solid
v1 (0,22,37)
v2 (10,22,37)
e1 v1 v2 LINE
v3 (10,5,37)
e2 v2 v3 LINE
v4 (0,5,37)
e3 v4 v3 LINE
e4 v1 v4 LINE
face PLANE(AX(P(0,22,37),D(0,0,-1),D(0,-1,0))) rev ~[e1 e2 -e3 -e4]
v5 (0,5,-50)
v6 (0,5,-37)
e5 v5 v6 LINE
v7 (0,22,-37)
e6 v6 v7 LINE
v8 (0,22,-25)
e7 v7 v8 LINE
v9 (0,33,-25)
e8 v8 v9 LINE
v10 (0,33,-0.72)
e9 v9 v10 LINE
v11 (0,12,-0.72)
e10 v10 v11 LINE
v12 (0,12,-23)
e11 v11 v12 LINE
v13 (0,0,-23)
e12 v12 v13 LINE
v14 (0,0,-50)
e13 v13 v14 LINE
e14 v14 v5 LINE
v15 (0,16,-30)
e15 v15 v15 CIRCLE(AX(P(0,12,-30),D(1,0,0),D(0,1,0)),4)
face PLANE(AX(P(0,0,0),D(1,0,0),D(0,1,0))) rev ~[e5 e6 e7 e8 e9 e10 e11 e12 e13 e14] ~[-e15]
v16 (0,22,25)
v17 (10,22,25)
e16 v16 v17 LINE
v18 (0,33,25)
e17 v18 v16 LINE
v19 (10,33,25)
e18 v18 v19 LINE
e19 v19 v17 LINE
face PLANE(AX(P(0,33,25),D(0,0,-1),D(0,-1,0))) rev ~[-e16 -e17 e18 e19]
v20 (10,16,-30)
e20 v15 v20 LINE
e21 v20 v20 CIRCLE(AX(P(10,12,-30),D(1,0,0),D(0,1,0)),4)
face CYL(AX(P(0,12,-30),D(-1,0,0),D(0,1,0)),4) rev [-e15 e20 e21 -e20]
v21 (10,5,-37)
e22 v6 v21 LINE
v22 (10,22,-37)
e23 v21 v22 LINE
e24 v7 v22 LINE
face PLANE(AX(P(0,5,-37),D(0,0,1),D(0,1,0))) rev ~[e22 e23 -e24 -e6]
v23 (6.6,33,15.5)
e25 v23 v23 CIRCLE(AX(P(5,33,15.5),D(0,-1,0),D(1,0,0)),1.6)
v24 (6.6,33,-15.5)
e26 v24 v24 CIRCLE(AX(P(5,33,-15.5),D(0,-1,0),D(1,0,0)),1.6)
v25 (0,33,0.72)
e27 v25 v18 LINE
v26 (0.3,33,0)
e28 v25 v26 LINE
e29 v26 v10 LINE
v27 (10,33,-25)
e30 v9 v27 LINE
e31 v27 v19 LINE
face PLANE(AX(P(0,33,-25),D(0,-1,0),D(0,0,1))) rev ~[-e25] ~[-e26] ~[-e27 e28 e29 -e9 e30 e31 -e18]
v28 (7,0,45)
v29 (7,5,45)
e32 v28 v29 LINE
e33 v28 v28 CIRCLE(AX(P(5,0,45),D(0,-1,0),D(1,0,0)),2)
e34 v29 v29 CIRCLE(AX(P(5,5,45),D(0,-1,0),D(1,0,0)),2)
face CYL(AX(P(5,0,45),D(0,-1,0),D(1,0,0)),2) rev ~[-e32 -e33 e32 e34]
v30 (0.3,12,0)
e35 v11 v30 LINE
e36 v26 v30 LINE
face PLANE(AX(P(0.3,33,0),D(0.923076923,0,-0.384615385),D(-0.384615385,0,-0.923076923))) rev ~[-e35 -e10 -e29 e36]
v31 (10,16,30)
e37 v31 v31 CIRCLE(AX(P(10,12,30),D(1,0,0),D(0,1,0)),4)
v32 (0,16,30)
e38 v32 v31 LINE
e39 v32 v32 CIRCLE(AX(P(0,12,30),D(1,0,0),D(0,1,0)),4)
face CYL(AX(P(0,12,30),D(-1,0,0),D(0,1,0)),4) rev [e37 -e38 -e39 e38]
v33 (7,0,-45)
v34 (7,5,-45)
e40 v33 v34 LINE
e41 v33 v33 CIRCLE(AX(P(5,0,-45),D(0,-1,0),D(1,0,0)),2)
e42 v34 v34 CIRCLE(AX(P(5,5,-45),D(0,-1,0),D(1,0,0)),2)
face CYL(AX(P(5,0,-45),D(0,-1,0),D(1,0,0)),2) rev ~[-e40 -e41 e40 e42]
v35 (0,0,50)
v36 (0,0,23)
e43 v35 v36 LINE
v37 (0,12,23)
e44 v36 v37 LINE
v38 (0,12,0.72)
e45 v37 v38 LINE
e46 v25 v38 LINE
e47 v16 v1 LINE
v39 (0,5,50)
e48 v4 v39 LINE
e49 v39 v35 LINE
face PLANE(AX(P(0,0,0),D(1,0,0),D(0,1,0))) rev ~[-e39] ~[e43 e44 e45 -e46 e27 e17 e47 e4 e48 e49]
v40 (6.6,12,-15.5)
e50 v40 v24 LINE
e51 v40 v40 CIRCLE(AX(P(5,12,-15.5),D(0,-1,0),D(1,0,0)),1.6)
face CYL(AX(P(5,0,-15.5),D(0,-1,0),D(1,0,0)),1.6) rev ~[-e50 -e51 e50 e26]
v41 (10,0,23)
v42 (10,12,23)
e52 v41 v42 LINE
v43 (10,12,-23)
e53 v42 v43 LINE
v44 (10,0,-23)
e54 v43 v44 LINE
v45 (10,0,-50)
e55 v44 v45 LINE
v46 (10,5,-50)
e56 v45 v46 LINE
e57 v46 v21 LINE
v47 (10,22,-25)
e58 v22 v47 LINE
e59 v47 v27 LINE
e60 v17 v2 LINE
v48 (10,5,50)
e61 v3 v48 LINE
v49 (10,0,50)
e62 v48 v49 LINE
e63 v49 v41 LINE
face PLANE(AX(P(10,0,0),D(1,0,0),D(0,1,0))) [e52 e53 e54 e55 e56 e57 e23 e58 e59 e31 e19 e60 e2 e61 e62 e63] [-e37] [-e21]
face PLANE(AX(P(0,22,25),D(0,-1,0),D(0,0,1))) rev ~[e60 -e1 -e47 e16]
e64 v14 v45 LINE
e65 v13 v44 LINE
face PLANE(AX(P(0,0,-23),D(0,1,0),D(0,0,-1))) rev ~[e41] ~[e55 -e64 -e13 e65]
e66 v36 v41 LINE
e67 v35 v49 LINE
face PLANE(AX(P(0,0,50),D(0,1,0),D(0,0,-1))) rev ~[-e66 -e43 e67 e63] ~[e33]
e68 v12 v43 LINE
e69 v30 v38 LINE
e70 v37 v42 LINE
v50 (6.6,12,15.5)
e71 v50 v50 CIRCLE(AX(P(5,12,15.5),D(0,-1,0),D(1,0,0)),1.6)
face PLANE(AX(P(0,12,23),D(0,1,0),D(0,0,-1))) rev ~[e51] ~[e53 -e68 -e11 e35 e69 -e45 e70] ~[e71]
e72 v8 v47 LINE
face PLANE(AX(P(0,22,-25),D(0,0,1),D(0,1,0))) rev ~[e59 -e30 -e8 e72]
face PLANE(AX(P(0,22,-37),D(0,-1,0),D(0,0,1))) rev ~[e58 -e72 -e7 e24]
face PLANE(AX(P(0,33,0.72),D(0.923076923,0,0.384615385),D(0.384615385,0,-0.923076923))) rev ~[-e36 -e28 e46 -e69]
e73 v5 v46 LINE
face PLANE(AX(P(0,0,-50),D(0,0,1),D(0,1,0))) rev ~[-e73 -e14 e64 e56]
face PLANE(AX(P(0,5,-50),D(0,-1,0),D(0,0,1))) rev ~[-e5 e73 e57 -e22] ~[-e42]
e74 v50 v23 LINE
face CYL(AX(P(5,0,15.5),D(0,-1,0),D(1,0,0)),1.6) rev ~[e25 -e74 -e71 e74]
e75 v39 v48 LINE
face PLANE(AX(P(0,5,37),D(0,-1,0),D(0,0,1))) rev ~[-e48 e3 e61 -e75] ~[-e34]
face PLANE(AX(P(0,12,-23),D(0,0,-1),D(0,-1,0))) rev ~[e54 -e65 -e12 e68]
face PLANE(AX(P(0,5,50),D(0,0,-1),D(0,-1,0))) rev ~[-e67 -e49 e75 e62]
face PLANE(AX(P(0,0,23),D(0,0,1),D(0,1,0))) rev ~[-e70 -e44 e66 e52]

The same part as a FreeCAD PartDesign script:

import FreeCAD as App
import Part
import Sketcher

doc = App.newDocument("Part")
body = doc.addObject("PartDesign::Body", "Body")

# Sketch on YZ plane
sketch1 = body.newObject("Sketcher::SketchObject", "Sketch")
sketch1.AttachmentSupport = (doc.getObject("YZ_Plane"), [""])
sketch1.MapMode = "FlatFace"
sketch1.addGeometry(Part.LineSegment(App.Vector(5, 50, 0), App.Vector(0, 50, 0)), False)
sketch1.addGeometry(Part.LineSegment(App.Vector(0, 50, 0), App.Vector(0, 23, 0)), False)
sketch1.addGeometry(Part.LineSegment(App.Vector(0, 23, 0), App.Vector(12, 23, 0)), False)
sketch1.addGeometry(Part.LineSegment(App.Vector(12, 23, 0), App.Vector(12, -23, 0)), False)
sketch1.addGeometry(Part.LineSegment(App.Vector(12, -23, 0), App.Vector(0, -23, 0)), False)
sketch1.addGeometry(Part.LineSegment(App.Vector(0, -23, 0), App.Vector(0, -50, 0)), False)
sketch1.addGeometry(Part.LineSegment(App.Vector(0, -50, 0), App.Vector(5, -50, 0)), False)
sketch1.addGeometry(Part.LineSegment(App.Vector(5, -50, 0), App.Vector(5, -37, 0)), False)
sketch1.addGeometry(Part.LineSegment(App.Vector(5, -37, 0), App.Vector(22, -37, 0)), False)
sketch1.addGeometry(Part.LineSegment(App.Vector(22, -37, 0), App.Vector(22, -25, 0)), False)
sketch1.addGeometry(Part.LineSegment(App.Vector(22, -25, 0), App.Vector(33, -25, 0)), False)
sketch1.addGeometry(Part.LineSegment(App.Vector(33, -25, 0), App.Vector(33, 25, 0)), False)
sketch1.addGeometry(Part.LineSegment(App.Vector(33, 25, 0), App.Vector(22, 25, 0)), False)
sketch1.addGeometry(Part.LineSegment(App.Vector(22, 25, 0), App.Vector(22, 37, 0)), False)
sketch1.addGeometry(Part.LineSegment(App.Vector(22, 37, 0), App.Vector(5, 37, 0)), False)
sketch1.addGeometry(Part.LineSegment(App.Vector(5, 37, 0), App.Vector(5, 50, 0)), False)
sketch1.addGeometry(Part.Circle(App.Vector(12, -30, 0), App.Vector(0, 0, 1), 4), False)
sketch1.addGeometry(Part.Circle(App.Vector(12, 30, 0), App.Vector(0, 0, 1), 4), False)
sketch1.addConstraint(Sketcher.Constraint("Coincident", 0, 2, 1, 1))
sketch1.addConstraint(Sketcher.Constraint("Coincident", 1, 2, 2, 1))
sketch1.addConstraint(Sketcher.Constraint("Coincident", 2, 2, 3, 1))
sketch1.addConstraint(Sketcher.Constraint("Coincident", 3, 2, 4, 1))
sketch1.addConstraint(Sketcher.Constraint("Coincident", 4, 2, 5, 1))
sketch1.addConstraint(Sketcher.Constraint("Coincident", 5, 2, 6, 1))
sketch1.addConstraint(Sketcher.Constraint("Coincident", 6, 2, 7, 1))
sketch1.addConstraint(Sketcher.Constraint("Coincident", 7, 2, 8, 1))
sketch1.addConstraint(Sketcher.Constraint("Coincident", 8, 2, 9, 1))
sketch1.addConstraint(Sketcher.Constraint("Coincident", 9, 2, 10, 1))
sketch1.addConstraint(Sketcher.Constraint("Coincident", 10, 2, 11, 1))
sketch1.addConstraint(Sketcher.Constraint("Coincident", 11, 2, 12, 1))
sketch1.addConstraint(Sketcher.Constraint("Coincident", 12, 2, 13, 1))
sketch1.addConstraint(Sketcher.Constraint("Coincident", 13, 2, 14, 1))
sketch1.addConstraint(Sketcher.Constraint("Coincident", 14, 2, 15, 1))
sketch1.addConstraint(Sketcher.Constraint("Coincident", 15, 2, 0, 1))
sketch1.addConstraint(Sketcher.Constraint("Horizontal", 0))
sketch1.addConstraint(Sketcher.Constraint("Vertical", 1))
sketch1.addConstraint(Sketcher.Constraint("Horizontal", 2))
sketch1.addConstraint(Sketcher.Constraint("Vertical", 3))
sketch1.addConstraint(Sketcher.Constraint("Horizontal", 4))
sketch1.addConstraint(Sketcher.Constraint("Vertical", 5))
sketch1.addConstraint(Sketcher.Constraint("Horizontal", 6))
sketch1.addConstraint(Sketcher.Constraint("Vertical", 7))
sketch1.addConstraint(Sketcher.Constraint("Horizontal", 8))
sketch1.addConstraint(Sketcher.Constraint("Vertical", 9))
sketch1.addConstraint(Sketcher.Constraint("Horizontal", 10))
sketch1.addConstraint(Sketcher.Constraint("Vertical", 11))
sketch1.addConstraint(Sketcher.Constraint("Horizontal", 12))
sketch1.addConstraint(Sketcher.Constraint("Vertical", 13))
sketch1.addConstraint(Sketcher.Constraint("Horizontal", 14))
sketch1.addConstraint(Sketcher.Constraint("Vertical", 15))
sketch1.addConstraint(Sketcher.Constraint("Equal", 16, 17))
sketch1.addConstraint(Sketcher.Constraint("Symmetric", 1, 2, 4, 2, -1, 1))
sketch1.addConstraint(Sketcher.Constraint("Symmetric", 16, 3, 17, 3, -1))
sketch1.addConstraint(Sketcher.Constraint("Symmetric", 0, 2, 5, 2, -1))
sketch1.addConstraint(Sketcher.Constraint("Symmetric", 9, 2, 12, 2, -1))
sketch1.addConstraint(Sketcher.Constraint("Symmetric", 7, 2, 14, 2, -1))
sketch1.addConstraint(Sketcher.Constraint("Vertical", 17, 3, 2, 2))
sketch1.addConstraint(Sketcher.Constraint("Equal", 4, 9))
sketch1.addConstraint(Sketcher.Constraint("Diameter", 16, 8.0))
sketch1.addConstraint(Sketcher.Constraint("DistanceX", 0, 2, 0, 1, 5.0))
sketch1.addConstraint(Sketcher.Constraint("DistanceX", 2, 1, 2, 2, 12.0))
sketch1.addConstraint(Sketcher.Constraint("DistanceX", 8, 1, 8, 2, 17.0))
sketch1.addConstraint(Sketcher.Constraint("DistanceX", 10, 1, 10, 2, 11.0))
sketch1.addConstraint(Sketcher.Constraint("DistanceY", 1, 2, 1, 1, 27.0))
sketch1.addConstraint(Sketcher.Constraint("DistanceY", 3, 2, 3, 1, 46.0))
sketch1.addConstraint(Sketcher.Constraint("DistanceY", 7, 1, 7, 2, 13.0))
sketch1.addConstraint(Sketcher.Constraint("DistanceY", 16, 3, -1, 1, 30.0))
pad1 = body.newObject("PartDesign::Pad", "Pad")
pad1.Profile = sketch1
pad1.Length = 10

# Sketch on XZ plane
sketch2 = body.newObject("Sketcher::SketchObject", "Sketch001")
sketch2.AttachmentSupport = (doc.getObject("XZ_Plane"), [""])
sketch2.MapMode = "FlatFace"
sketch2.addGeometry(Part.Circle(App.Vector(5, 45, 0), App.Vector(0, 0, 1), 2), False)
sketch2.addGeometry(Part.Circle(App.Vector(5, 15.5, 0), App.Vector(0, 0, 1), 1.6), False)
sketch2.addGeometry(Part.Circle(App.Vector(5, -15.5, 0), App.Vector(0, 0, 1), 1.6), False)
sketch2.addGeometry(Part.Circle(App.Vector(5, -45, 0), App.Vector(0, 0, 1), 2), False)
sketch2.addConstraint(Sketcher.Constraint("Equal", 1, 2))
sketch2.addConstraint(Sketcher.Constraint("Equal", 0, 3))
sketch2.addConstraint(Sketcher.Constraint("Symmetric", 1, 3, 2, 3, -1))
sketch2.addConstraint(Sketcher.Constraint("Symmetric", 0, 3, 3, 3, -1))
sketch2.addConstraint(Sketcher.Constraint("Vertical", 0, 3, 1, 3))
sketch2.addConstraint(Sketcher.Constraint("Diameter", 0, 4.0))
sketch2.addConstraint(Sketcher.Constraint("Diameter", 1, 3.2))
sketch2.addConstraint(Sketcher.Constraint("DistanceY", -1, 1, 0, 3, 45.0))
sketch2.addConstraint(Sketcher.Constraint("DistanceY", -1, 1, 1, 3, 15.5))
sketch2.addConstraint(Sketcher.Constraint("DistanceX", -1, 1, 0, 3, 5.0))
pocket1 = body.newObject("PartDesign::Pocket", "Pocket")
pocket1.Profile = sketch2
pocket1.Type = "ThroughAll"

# Sketch on XZ plane
sketch3 = body.newObject("Sketcher::SketchObject", "Sketch002")
sketch3.AttachmentSupport = (doc.getObject("XZ_Plane"), [""])
sketch3.MapMode = "FlatFace"
sketch3.AttachmentOffset = App.Placement(App.Vector(0, 0, -33), App.Rotation())
sketch3.addGeometry(Part.LineSegment(App.Vector(0, 0.7, 0), App.Vector(0.3, 0, 0)), False)
sketch3.addGeometry(Part.LineSegment(App.Vector(0.3, 0, 0), App.Vector(0, -0.7, 0)), False)
sketch3.addGeometry(Part.LineSegment(App.Vector(0, -0.7, 0), App.Vector(0, 0.7, 0)), False)
sketch3.addConstraint(Sketcher.Constraint("Coincident", 0, 2, 1, 1))
sketch3.addConstraint(Sketcher.Constraint("Coincident", 1, 2, 2, 1))
sketch3.addConstraint(Sketcher.Constraint("Coincident", 2, 2, 0, 1))
sketch3.addConstraint(Sketcher.Constraint("Vertical", 2))
sketch3.addConstraint(Sketcher.Constraint("Symmetric", 1, 2, 2, 2, -1, 1))
sketch3.addConstraint(Sketcher.Constraint("PointOnObject", 0, 2, -1))
sketch3.addConstraint(Sketcher.Constraint("DistanceX", -1, 1, 0, 2, 0.3))
sketch3.addConstraint(Sketcher.Constraint("DistanceY", 1, 2, -1, 1, 0.72))
pocket2 = body.newObject("PartDesign::Pocket", "Pocket001")
pocket2.Profile = sketch3
pocket2.Type = "UpToFirst"
pocket2.Reversed = True

doc.recompute()
